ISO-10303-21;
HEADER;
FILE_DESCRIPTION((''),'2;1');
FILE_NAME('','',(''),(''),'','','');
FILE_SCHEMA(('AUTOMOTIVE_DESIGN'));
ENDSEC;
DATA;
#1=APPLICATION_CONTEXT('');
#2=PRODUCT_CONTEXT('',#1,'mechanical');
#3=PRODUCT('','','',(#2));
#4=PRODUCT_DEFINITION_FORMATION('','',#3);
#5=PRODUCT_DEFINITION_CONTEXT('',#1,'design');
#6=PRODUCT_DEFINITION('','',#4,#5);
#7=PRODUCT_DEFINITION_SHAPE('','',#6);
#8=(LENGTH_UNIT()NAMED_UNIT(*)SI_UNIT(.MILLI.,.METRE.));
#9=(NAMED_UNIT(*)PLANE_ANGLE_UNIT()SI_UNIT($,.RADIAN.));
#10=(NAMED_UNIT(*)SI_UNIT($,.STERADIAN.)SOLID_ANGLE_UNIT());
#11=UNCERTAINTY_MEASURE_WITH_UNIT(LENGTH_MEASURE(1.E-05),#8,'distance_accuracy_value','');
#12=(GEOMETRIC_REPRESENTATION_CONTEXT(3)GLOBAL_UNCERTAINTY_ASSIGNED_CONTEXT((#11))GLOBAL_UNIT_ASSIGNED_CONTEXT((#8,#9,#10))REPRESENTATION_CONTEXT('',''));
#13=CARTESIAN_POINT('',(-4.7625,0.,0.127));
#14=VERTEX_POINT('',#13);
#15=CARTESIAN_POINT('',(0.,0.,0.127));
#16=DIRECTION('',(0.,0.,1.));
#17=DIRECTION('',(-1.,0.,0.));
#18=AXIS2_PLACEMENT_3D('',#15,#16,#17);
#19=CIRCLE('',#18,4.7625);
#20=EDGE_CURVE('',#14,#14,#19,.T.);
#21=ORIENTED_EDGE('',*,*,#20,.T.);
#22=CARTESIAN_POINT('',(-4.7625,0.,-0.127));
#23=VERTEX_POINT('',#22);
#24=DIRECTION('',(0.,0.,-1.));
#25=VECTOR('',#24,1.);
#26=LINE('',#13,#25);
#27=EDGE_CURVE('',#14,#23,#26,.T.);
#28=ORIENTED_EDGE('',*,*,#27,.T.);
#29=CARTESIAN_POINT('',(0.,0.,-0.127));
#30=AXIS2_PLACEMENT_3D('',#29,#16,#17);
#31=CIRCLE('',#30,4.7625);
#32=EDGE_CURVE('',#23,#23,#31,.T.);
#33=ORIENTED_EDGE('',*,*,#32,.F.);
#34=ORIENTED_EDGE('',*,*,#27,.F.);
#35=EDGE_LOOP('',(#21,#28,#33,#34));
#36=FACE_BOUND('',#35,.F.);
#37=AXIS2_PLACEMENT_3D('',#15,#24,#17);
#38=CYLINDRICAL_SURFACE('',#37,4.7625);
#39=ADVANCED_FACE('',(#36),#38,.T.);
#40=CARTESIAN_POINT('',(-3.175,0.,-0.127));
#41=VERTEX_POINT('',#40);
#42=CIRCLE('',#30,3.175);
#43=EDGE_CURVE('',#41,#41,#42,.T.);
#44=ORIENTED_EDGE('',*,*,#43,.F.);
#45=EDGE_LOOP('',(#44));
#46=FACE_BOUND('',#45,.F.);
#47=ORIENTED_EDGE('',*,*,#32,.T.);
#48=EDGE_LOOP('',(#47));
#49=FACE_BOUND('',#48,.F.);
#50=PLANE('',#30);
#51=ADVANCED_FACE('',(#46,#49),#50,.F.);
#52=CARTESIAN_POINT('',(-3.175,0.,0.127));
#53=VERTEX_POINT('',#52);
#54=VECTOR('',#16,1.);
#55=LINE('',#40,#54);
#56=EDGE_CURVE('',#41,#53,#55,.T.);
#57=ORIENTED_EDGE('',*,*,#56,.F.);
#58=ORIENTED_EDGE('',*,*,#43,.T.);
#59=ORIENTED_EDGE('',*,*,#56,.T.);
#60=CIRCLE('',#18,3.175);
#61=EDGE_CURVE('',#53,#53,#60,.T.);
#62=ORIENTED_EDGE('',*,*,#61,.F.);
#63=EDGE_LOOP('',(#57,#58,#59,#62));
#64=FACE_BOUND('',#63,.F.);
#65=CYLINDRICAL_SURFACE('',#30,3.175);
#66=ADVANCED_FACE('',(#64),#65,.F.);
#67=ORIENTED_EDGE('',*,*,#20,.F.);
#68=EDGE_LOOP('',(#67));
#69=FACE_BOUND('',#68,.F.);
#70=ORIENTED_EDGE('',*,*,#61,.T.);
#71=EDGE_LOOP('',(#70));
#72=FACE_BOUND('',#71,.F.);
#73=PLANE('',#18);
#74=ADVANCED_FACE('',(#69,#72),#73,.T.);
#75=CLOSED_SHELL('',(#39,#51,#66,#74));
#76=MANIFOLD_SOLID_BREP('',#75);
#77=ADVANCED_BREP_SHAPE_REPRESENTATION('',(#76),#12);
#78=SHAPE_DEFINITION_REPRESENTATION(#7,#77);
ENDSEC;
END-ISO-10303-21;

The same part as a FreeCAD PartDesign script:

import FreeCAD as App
import Part
import Sketcher

V = App.Vector
Q = App.Units.Quantity


def add_polygon(sketch, points):
    """Adds a closed chain of lines whose ends are joined by coincident constraints."""
    first, n = sketch.GeometryCount, len(points)
    for a, b in zip(points, points[1:] + points[:1]):
        sketch.addGeometry(Part.LineSegment(App.Vector(*a, 0), App.Vector(*b, 0)), False)
    for i in range(n):
        sketch.addConstraint(Sketcher.Constraint("Coincident", first + i, 2, first + (i + 1) % n, 1))

doc = App.newDocument("Part")
body = doc.addObject("PartDesign::Body", "Body")

# Sketch on XZ plane
sketch1 = body.newObject("Sketcher::SketchObject", "Sketch")
sketch1.AttachmentSupport = (doc.getObject("XZ_Plane"), [""])
sketch1.MapMode = "FlatFace"
add_polygon(sketch1, [(-3.17, 0.13), (-3.17, -0.13), (-4.76, -0.13), (-4.76, 0.13)])  # lines 0-3
sketch1.addConstraint([
    Sketcher.Constraint("Vertical", 0),
    Sketcher.Constraint("Horizontal", 1),
    Sketcher.Constraint("Vertical", 2),
    Sketcher.Constraint("Horizontal", 3),
    Sketcher.Constraint("DistanceY", 0, 2, 0, 1, Q("0.01 in")),
    Sketcher.Constraint("DistanceX", 1, 2, 1, 1, Q("0.0625 in")),
    Sketcher.Constraint("DistanceX", 0, 2, -1, 1, Q("0.125 in")),
    Sketcher.Constraint("DistanceY", 0, 2, -1, 1, Q("0.005 in")),
])
revolution = body.newObject("PartDesign::Revolution", "Revolution")
revolution.Profile = sketch1
revolution.ReferenceAxis = (sketch1, ["V_Axis"])
revolution.Angle = 360

doc.recompute()
